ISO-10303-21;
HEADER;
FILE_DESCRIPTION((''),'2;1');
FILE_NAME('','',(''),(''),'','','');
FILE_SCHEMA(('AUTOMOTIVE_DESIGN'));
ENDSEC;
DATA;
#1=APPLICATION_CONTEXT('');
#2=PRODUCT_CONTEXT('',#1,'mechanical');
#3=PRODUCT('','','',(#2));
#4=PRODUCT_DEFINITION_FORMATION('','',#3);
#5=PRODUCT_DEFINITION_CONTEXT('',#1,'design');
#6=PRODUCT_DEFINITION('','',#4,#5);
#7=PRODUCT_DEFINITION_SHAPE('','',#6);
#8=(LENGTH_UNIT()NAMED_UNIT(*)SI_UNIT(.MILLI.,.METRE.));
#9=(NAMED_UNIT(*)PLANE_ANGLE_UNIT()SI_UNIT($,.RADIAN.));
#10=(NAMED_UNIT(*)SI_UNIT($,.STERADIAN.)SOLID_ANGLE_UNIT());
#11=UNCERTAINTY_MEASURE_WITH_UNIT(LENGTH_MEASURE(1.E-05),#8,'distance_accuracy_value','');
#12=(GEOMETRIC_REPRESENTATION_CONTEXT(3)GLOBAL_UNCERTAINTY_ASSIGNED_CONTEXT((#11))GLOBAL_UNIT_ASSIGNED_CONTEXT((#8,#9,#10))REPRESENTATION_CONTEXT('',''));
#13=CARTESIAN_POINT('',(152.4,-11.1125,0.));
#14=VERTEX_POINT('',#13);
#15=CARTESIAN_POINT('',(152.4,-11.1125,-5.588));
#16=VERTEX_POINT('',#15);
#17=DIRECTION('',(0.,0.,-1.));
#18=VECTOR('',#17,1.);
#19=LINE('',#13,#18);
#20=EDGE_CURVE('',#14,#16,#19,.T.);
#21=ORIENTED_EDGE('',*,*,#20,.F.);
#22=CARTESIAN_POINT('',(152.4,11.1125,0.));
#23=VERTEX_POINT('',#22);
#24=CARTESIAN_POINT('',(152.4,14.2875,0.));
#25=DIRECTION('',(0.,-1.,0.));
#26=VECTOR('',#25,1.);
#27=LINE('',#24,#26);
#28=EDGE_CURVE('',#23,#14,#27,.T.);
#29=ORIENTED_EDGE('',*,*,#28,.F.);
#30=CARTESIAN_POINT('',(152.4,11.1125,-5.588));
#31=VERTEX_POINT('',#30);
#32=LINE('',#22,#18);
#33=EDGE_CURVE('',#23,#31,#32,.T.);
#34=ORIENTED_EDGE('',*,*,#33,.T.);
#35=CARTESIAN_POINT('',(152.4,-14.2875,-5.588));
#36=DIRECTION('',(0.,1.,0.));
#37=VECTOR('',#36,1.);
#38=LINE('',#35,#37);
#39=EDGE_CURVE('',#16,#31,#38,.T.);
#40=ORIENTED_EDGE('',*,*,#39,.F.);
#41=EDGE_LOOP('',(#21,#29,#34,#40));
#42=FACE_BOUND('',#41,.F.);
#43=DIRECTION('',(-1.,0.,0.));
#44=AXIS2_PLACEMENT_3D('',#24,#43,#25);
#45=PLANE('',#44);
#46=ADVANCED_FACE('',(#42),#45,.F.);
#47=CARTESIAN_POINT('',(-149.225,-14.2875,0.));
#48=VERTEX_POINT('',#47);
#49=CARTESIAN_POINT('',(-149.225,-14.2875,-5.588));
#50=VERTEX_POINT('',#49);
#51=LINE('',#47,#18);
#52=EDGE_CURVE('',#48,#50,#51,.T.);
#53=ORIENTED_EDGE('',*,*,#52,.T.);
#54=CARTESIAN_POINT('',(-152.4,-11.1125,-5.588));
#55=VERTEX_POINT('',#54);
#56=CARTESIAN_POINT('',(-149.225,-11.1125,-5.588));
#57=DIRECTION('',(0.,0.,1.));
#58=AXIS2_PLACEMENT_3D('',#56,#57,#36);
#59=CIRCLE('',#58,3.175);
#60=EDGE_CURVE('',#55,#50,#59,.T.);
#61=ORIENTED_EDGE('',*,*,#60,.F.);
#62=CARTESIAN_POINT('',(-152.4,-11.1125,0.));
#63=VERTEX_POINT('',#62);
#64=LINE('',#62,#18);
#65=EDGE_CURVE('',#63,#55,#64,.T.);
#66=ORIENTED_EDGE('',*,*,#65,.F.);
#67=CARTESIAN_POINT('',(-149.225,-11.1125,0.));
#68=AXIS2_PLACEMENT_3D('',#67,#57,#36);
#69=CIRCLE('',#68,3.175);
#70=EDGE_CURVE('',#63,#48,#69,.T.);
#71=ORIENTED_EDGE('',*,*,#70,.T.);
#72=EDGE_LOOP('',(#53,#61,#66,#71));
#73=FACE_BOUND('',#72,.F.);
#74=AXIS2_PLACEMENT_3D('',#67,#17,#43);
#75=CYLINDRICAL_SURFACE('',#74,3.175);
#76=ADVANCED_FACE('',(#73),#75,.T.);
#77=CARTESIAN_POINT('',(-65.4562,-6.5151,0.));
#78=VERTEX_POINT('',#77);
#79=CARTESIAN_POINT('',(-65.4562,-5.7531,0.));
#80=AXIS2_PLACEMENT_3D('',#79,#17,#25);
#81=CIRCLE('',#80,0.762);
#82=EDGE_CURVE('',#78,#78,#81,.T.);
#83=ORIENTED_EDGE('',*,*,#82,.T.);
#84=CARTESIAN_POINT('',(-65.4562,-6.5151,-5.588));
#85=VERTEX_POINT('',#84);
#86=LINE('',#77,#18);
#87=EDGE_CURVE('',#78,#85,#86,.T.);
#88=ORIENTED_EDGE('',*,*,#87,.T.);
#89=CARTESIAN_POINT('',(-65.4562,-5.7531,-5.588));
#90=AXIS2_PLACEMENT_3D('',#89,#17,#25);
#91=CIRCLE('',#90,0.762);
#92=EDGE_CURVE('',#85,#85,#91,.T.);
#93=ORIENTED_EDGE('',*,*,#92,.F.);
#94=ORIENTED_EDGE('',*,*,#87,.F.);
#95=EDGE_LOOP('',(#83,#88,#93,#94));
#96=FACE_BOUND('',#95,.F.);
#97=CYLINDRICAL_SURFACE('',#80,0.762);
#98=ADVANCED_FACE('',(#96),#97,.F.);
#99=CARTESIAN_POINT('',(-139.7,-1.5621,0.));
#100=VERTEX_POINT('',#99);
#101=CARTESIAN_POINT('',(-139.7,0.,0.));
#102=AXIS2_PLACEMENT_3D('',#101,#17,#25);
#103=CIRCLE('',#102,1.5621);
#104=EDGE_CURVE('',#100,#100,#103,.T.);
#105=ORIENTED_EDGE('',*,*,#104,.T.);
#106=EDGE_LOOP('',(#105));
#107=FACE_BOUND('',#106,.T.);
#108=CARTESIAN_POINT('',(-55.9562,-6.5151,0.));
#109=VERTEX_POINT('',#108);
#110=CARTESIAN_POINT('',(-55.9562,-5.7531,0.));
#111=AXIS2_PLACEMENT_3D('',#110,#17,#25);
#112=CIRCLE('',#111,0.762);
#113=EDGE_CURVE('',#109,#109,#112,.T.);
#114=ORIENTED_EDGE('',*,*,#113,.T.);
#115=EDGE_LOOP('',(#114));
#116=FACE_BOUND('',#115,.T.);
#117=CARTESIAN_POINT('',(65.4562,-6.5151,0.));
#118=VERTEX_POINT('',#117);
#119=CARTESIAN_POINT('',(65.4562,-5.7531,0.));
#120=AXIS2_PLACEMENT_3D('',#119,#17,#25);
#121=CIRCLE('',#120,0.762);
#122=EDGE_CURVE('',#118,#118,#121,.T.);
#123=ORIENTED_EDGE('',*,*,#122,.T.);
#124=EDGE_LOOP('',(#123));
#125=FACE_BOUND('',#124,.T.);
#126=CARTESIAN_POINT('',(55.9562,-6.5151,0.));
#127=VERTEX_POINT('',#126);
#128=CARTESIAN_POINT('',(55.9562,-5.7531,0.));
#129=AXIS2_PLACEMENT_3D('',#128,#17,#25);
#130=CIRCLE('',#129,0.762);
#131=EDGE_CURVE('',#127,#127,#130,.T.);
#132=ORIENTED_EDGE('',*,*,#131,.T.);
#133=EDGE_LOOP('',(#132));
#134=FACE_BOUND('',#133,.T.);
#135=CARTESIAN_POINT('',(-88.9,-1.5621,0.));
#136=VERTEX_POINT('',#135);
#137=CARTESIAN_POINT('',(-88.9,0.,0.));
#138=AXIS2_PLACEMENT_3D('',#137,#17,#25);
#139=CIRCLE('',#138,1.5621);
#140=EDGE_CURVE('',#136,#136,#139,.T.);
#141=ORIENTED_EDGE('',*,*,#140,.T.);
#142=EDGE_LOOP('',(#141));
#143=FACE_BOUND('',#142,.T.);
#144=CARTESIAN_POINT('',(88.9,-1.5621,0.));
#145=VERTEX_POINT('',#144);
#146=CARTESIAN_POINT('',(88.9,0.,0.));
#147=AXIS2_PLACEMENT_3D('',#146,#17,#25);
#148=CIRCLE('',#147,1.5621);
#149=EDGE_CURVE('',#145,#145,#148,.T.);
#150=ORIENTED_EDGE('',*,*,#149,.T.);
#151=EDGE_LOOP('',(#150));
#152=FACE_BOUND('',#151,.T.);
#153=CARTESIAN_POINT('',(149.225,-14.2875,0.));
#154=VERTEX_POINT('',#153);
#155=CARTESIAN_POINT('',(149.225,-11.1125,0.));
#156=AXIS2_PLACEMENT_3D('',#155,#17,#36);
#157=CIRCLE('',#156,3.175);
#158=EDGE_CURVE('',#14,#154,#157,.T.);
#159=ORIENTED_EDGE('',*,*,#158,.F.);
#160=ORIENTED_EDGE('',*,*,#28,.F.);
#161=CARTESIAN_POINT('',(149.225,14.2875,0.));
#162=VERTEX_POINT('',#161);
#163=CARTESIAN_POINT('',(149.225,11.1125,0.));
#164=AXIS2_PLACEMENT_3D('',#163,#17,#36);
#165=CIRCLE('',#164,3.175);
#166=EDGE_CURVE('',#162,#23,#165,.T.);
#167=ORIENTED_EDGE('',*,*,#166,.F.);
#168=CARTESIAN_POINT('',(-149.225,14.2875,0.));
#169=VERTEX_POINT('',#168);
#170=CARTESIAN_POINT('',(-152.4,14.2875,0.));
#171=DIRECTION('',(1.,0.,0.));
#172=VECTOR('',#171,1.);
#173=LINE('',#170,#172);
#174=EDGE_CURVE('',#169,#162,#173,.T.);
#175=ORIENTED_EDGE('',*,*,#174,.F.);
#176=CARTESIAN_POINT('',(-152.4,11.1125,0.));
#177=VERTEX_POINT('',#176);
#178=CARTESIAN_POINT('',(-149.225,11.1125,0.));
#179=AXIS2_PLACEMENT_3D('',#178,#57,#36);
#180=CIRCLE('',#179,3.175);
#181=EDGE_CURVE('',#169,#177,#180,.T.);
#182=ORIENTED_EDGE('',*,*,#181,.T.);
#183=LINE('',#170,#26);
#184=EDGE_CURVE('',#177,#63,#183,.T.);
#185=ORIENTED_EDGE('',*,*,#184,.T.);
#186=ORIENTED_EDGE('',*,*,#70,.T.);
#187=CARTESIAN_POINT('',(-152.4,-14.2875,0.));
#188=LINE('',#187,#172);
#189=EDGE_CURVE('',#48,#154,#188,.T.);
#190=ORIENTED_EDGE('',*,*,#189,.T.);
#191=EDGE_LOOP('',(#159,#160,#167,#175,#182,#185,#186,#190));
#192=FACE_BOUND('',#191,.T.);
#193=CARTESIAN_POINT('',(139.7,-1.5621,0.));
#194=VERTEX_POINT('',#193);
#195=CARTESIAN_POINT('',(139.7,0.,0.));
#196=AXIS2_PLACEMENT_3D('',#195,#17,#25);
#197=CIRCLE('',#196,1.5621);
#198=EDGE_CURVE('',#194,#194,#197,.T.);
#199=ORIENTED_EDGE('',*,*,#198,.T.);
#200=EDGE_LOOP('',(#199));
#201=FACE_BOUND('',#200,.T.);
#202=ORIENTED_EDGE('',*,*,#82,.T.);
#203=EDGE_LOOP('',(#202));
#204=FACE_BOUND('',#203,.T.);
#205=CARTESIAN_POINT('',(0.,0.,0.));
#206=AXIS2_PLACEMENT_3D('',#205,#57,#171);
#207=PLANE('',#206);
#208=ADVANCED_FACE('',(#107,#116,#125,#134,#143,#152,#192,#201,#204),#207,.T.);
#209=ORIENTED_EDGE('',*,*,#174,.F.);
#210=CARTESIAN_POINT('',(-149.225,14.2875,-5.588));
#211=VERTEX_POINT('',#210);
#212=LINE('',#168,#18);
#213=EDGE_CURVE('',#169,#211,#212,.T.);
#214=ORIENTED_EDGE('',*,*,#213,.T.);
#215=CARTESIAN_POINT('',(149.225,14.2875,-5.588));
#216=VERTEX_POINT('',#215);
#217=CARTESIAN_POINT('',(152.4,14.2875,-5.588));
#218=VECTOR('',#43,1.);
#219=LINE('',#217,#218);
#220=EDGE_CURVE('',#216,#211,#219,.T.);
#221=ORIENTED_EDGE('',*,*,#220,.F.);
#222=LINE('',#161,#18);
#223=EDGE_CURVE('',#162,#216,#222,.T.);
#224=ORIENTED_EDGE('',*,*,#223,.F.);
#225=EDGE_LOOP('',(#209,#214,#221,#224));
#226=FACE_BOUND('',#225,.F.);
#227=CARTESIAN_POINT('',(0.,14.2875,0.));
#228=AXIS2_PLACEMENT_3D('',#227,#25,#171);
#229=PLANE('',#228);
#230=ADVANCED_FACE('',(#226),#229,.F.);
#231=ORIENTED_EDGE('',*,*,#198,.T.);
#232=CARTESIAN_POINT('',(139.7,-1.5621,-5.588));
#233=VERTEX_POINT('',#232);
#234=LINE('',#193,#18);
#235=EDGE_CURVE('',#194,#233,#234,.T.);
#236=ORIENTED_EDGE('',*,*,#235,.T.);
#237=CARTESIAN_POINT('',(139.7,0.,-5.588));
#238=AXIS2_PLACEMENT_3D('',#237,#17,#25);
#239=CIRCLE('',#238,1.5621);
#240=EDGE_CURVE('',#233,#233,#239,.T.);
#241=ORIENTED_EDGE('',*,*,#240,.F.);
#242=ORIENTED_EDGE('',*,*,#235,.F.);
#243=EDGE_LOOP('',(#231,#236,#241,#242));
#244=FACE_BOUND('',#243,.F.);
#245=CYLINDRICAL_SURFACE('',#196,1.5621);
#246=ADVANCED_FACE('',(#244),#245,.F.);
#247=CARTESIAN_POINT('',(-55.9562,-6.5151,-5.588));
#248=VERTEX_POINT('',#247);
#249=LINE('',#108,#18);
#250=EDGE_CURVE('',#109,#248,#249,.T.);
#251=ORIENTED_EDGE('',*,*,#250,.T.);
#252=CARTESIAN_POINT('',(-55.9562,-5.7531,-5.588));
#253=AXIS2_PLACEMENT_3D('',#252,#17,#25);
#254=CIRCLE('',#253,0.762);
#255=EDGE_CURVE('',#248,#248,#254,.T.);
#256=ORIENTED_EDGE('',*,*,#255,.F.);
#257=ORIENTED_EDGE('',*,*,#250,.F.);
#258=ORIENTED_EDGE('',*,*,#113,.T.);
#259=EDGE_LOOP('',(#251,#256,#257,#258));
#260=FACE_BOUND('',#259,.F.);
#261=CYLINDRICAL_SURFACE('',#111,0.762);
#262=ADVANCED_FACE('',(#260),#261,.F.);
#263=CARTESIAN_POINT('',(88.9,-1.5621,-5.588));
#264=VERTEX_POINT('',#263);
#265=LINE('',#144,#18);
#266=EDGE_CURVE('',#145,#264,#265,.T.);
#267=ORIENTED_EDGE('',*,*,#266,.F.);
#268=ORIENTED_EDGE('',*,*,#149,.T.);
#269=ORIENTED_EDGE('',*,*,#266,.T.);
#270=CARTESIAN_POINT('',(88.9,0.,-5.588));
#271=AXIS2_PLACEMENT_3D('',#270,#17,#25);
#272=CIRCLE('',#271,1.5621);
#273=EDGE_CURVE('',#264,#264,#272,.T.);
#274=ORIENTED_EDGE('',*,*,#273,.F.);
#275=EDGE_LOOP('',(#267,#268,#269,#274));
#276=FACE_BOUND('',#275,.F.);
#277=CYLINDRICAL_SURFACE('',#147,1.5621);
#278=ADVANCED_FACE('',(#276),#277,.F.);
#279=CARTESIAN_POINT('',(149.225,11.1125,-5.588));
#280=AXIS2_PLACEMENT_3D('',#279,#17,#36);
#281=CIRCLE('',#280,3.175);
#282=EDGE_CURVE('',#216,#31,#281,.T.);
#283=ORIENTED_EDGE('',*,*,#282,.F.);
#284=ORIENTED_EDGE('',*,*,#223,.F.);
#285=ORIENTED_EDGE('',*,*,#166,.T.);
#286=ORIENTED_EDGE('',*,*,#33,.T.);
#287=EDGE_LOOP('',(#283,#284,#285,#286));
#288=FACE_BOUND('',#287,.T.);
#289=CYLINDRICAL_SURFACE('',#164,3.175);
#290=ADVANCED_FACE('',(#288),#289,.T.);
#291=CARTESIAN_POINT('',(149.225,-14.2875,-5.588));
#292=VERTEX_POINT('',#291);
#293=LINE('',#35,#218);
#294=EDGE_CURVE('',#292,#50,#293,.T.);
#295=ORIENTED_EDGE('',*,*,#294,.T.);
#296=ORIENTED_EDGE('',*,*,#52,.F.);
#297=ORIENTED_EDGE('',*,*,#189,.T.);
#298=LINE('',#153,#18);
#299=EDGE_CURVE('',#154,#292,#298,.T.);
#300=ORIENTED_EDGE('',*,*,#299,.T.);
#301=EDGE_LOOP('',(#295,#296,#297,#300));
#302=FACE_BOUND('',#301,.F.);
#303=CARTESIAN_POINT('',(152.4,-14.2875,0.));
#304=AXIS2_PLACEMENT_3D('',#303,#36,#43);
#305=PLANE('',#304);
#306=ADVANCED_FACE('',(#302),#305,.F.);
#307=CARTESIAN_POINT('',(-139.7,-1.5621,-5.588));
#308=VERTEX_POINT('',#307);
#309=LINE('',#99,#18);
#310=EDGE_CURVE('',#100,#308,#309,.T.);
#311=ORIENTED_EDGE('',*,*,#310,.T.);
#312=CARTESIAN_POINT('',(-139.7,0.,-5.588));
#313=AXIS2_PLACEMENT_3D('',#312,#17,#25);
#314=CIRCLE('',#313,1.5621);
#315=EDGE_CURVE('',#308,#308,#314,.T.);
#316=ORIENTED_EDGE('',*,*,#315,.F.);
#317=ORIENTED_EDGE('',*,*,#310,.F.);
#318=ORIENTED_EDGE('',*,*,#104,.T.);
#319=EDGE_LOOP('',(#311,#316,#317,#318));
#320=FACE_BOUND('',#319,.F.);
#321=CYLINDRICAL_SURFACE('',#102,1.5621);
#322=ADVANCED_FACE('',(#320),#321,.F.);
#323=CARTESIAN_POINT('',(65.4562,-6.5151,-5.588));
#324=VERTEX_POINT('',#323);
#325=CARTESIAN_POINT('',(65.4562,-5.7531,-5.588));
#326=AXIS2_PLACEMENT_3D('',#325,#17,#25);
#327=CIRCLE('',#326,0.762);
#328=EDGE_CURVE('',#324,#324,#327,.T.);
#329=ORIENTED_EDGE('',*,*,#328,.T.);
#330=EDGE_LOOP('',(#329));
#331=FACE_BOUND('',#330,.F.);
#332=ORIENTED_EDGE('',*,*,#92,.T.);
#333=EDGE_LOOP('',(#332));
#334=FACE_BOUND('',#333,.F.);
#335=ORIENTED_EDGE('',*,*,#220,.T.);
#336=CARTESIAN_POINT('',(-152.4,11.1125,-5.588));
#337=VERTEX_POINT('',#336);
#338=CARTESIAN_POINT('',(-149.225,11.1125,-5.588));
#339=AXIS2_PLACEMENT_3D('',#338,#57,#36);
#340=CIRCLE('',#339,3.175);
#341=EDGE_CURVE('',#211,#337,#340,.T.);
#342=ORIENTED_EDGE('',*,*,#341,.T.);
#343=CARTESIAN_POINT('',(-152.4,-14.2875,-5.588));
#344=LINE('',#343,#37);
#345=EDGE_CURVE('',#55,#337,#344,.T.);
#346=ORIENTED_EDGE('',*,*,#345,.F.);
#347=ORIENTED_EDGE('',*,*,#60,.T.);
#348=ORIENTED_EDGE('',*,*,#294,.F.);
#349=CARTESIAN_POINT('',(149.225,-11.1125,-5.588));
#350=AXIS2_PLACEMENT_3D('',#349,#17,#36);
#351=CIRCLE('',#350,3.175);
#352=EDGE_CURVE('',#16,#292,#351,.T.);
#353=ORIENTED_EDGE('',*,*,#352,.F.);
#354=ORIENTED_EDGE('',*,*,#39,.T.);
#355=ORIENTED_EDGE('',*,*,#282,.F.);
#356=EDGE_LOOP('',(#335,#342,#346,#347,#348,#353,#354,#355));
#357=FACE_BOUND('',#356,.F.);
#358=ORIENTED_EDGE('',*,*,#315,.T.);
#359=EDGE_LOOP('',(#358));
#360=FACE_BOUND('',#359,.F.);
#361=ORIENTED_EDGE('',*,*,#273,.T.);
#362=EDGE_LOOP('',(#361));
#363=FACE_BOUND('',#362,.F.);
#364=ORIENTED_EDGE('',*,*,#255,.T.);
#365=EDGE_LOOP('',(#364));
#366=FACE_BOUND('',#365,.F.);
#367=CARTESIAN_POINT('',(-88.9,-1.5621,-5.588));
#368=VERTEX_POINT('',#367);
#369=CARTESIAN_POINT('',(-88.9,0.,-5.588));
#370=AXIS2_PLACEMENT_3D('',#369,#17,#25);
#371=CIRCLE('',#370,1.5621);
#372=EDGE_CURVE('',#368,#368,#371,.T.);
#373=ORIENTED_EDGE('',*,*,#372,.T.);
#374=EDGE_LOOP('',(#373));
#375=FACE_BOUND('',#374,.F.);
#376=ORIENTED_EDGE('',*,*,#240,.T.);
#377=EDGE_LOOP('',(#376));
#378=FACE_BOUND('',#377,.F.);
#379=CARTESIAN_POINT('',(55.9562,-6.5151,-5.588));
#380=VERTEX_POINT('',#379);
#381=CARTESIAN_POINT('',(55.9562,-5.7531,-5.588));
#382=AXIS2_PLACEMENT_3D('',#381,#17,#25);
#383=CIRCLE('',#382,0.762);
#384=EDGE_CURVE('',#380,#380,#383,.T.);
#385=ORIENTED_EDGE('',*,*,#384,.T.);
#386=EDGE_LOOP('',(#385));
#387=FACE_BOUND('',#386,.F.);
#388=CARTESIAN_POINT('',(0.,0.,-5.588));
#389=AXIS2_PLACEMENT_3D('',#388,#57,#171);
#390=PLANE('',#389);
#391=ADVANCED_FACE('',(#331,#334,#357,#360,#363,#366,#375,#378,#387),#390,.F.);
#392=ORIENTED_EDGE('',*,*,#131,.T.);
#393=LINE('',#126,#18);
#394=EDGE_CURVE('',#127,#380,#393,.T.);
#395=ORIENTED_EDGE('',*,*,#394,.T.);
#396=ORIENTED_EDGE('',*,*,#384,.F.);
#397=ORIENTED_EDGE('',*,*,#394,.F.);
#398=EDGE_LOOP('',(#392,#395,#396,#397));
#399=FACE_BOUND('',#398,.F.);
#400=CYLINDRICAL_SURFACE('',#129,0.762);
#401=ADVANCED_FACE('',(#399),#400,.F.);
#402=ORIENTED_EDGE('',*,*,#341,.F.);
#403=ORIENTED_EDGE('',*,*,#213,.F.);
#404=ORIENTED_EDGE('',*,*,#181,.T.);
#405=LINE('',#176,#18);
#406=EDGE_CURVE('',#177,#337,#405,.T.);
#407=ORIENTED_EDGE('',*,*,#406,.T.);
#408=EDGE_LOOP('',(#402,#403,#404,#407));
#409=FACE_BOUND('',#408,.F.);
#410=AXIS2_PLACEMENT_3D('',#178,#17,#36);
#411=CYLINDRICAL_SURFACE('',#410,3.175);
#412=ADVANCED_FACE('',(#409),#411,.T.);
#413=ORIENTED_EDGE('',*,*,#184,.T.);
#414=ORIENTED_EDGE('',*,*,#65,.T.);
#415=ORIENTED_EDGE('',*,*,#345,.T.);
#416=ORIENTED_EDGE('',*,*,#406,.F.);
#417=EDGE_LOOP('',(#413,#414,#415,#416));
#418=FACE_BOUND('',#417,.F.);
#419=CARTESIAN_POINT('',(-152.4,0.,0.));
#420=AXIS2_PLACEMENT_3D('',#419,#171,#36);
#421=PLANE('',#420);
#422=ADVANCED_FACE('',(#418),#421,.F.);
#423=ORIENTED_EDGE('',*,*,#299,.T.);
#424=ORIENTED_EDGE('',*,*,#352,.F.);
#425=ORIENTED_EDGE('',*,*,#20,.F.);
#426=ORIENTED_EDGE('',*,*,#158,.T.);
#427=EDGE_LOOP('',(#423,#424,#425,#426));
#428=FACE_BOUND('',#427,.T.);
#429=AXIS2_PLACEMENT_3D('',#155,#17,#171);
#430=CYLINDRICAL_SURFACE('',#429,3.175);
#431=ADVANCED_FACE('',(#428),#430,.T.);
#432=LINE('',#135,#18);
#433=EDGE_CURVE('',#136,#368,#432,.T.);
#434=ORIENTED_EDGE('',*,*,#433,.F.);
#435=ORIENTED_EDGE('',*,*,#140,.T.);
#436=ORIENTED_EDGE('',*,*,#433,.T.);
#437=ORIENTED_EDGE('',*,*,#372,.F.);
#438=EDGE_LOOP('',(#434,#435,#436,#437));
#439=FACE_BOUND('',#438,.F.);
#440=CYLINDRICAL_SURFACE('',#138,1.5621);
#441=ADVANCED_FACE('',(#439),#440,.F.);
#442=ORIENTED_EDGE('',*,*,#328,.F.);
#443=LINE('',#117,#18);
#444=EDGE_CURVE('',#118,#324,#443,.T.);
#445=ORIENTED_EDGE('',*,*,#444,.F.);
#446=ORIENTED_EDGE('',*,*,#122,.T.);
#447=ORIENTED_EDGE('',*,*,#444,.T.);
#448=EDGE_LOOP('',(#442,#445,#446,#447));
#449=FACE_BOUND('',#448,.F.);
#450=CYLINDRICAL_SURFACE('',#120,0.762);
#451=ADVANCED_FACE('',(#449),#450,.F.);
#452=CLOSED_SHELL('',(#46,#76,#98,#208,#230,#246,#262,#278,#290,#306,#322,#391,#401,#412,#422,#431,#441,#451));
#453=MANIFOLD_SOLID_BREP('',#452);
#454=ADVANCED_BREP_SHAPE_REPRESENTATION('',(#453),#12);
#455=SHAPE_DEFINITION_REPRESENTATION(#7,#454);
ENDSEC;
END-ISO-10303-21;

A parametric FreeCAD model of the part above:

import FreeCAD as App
import Part
import Sketcher
from FreeCAD import Vector
Q = App.Units.Quantity


def edges_at(feature, points):
    """Names of the edges that pass closest to the given points."""
    edges = feature.Shape.Edges
    near = lambda p: min(range(len(edges)), key=lambda i: edges[i].distToShape(Part.Vertex(*p))[0])
    return sorted({f"Edge{near(p) + 1}" for p in points})

doc = App.newDocument("Part")
body = doc.addObject("PartDesign::Body", "Body")

# Sketch on XY plane
sketch1 = body.newObject("Sketcher::SketchObject", "Sketch")
sketch1.AttachmentSupport = (doc.getObject("XY_Plane"), [""])
sketch1.MapMode = "FlatFace"
sketch1.addGeometry([
    Part.LineSegment(Vector(152, 14, 0), Vector(-152, 14, 0)),
    Part.LineSegment(Vector(-152, 14, 0), Vector(-152, -14, 0)),
    Part.LineSegment(Vector(-152, -14, 0), Vector(152, -14, 0)),
    Part.LineSegment(Vector(152, -14, 0), Vector(152, 14, 0)),
], False)
sketch1.addConstraint([
    Sketcher.Constraint("Coincident", 0, 2, 1, 1),
    Sketcher.Constraint("Coincident", 1, 2, 2, 1),
    Sketcher.Constraint("Coincident", 2, 2, 3, 1),
    Sketcher.Constraint("Coincident", 3, 2, 0, 1),
    Sketcher.Constraint("Horizontal", 0),
    Sketcher.Constraint("Vertical", 1),
    Sketcher.Constraint("Horizontal", 2),
    Sketcher.Constraint("Vertical", 3),
    Sketcher.Constraint("Symmetric", 0, 2, 2, 2, -1, 1),
    Sketcher.Constraint("DistanceX", 0, 2, 0, 1, Q("12 in")),
    Sketcher.Constraint("DistanceY", 1, 2, 1, 1, Q("1.125 in")),
])
pad1 = body.newObject("PartDesign::Pad", "Pad")
pad1.Profile = sketch1
pad1.Length = Q("0.22 in")
pad1.Reversed = True

# Sketch on XY plane
sketch2 = body.newObject("Sketcher::SketchObject", "Sketch001")
sketch2.AttachmentSupport = (doc.getObject("XY_Plane"), [""])
sketch2.MapMode = "FlatFace"
sketch2.addGeometry([
    Part.Circle(Vector(-88.9, 0, 0), Vector(0, 0, 1), 1.6),
    Part.Circle(Vector(-139.7, 0, 0), Vector(0, 0, 1), 1.6),
    Part.Circle(Vector(88.9, 0, 0), Vector(0, 0, 1), 1.6),
    Part.Circle(Vector(139.7, 0, 0), Vector(0, 0, 1), 1.6),
], False)
sketch2.addConstraint([
    Sketcher.Constraint("Equal", 0, 1),
    Sketcher.Constraint("Equal", 1, 2),
    Sketcher.Constraint("Equal", 2, 3),
    Sketcher.Constraint("Symmetric", 0, 3, 2, 3, -1, 1),
    Sketcher.Constraint("Symmetric", 1, 3, 3, 3, -1, 1),
    Sketcher.Constraint("PointOnObject", 0, 3, -1),
    Sketcher.Constraint("PointOnObject", 1, 3, -1),
    Sketcher.Constraint("Diameter", 0, Q("0.123 in")),
    Sketcher.Constraint("DistanceX", 1, 3, 0, 3, Q("2 in")),
    Sketcher.Constraint("DistanceX", 0, 3, 2, 3, Q("7 in")),
])
doc.recompute()
hole = body.newObject("PartDesign::Hole", "Hole")
hole.Profile = sketch2
hole.ThreadType = "None"
hole.Diameter = Q("0.123 in")
hole.DepthType = "Dimension"
hole.Depth = Q("1 in")
hole.DrillPoint = "Angled"
hole.DrillPointAngle = 118
doc.recompute()

fillet = body.newObject("PartDesign::Fillet", "Fillet")
fillet.Base = (hole, edges_at(hole, [
    (152.4, 14.287, -2.794),
    (152.4, -14.287, -2.794),
    (-152.4, -14.287, -2.794),
    (-152.4, 14.287, -2.794),
]))
fillet.Radius = Q("0.125 in")

# Sketch on XY plane
sketch3 = body.newObject("Sketcher::SketchObject", "Sketch002")
sketch3.AttachmentSupport = (doc.getObject("XY_Plane"), [""])
sketch3.MapMode = "FlatFace"
sketch3.addGeometry([
    Part.Circle(Vector(-65.5, -5.8, 0), Vector(0, 0, 1), 0.8),
    Part.Circle(Vector(-56, -5.8, 0), Vector(0, 0, 1), 0.8),
    Part.Circle(Vector(56, -5.8, 0), Vector(0, 0, 1), 0.8),
    Part.Circle(Vector(65.5, -5.8, 0), Vector(0, 0, 1), 0.8),
], False)
sketch3.addConstraint([
    Sketcher.Constraint("Equal", 0, 1),
    Sketcher.Constraint("Equal", 1, 2),
    Sketcher.Constraint("Equal", 2, 3),
    Sketcher.Constraint("Symmetric", 1, 3, 2, 3, -2),
    Sketcher.Constraint("Symmetric", 0, 3, 3, 3, -2),
    Sketcher.Constraint("Horizontal", 0, 3, 1, 3),
    Sketcher.Constraint("Diameter", 0, Q("0.06 in")),
    Sketcher.Constraint("DistanceX", 1, 3, -1, 1, Q("2.203 in")),
    Sketcher.Constraint("DistanceY", 0, 3, -1, 1, Q("0.2265 in")),
    Sketcher.Constraint("DistanceX", 0, 3, -1, 1, 65.4562),
])
doc.recompute()
hole2 = body.newObject("PartDesign::Hole", "Hole001")
hole2.Profile = sketch3
hole2.ThreadType = "None"
hole2.Diameter = Q("0.06 in")
hole2.DepthType = "ThroughAll"

doc.recompute()
